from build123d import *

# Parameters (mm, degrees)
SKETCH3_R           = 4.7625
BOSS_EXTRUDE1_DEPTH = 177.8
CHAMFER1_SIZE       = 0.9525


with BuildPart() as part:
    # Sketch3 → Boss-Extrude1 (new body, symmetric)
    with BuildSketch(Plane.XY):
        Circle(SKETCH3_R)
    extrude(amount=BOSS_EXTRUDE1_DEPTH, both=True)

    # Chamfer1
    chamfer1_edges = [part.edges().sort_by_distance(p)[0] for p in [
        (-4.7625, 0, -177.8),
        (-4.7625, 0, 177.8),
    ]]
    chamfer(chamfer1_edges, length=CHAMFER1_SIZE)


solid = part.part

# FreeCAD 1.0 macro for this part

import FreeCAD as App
import Part
import Sketcher
from FreeCAD import Vector
Q = App.Units.Quantity


def edges_at(feature, points):
    """Names of the edges that pass closest to the given points."""
    edges = feature.Shape.Edges
    near = lambda p: min(range(len(edges)), key=lambda i: edges[i].distToShape(Part.Vertex(*p))[0])
    return sorted({f"Edge{near(p) + 1}" for p in points})

doc = App.newDocument("Part")
body = doc.addObject("PartDesign::Body", "Body")

# Sketch on XY plane
sketch1 = doc.addObject("Sketcher::SketchObject", "Sketch")
body.addObject(sketch1)
sketch1.AttachmentSupport = (doc.XY_Plane, [""])
sketch1.MapMode = "FlatFace"
sketch1.addGeometry(Part.Circle(Vector(0, 0, 0), Vector(0, 0, 1), 4.8), False)
sketch1.addConstraint([
    Sketcher.Constraint("Coincident", 0, 3, -1, 1),
    Sketcher.Constraint("Diameter", 0, Q("0.375 in")),
])
pad1 = doc.addObject("PartDesign::Pad", "Pad")
body.addObject(pad1)
pad1.Profile = sketch1
pad1.Length = Q("14 in")
pad1.Midplane = True
doc.recompute()

chamfer = doc.addObject("PartDesign::Chamfer", "Chamfer")
body.addObject(chamfer)
chamfer.Base = (pad1, edges_at(pad1, [(-4.763, 0, -177.8), (-4.763, 0, 177.8)]))
chamfer.Size = Q("0.0375 in")

doc.recompute()
